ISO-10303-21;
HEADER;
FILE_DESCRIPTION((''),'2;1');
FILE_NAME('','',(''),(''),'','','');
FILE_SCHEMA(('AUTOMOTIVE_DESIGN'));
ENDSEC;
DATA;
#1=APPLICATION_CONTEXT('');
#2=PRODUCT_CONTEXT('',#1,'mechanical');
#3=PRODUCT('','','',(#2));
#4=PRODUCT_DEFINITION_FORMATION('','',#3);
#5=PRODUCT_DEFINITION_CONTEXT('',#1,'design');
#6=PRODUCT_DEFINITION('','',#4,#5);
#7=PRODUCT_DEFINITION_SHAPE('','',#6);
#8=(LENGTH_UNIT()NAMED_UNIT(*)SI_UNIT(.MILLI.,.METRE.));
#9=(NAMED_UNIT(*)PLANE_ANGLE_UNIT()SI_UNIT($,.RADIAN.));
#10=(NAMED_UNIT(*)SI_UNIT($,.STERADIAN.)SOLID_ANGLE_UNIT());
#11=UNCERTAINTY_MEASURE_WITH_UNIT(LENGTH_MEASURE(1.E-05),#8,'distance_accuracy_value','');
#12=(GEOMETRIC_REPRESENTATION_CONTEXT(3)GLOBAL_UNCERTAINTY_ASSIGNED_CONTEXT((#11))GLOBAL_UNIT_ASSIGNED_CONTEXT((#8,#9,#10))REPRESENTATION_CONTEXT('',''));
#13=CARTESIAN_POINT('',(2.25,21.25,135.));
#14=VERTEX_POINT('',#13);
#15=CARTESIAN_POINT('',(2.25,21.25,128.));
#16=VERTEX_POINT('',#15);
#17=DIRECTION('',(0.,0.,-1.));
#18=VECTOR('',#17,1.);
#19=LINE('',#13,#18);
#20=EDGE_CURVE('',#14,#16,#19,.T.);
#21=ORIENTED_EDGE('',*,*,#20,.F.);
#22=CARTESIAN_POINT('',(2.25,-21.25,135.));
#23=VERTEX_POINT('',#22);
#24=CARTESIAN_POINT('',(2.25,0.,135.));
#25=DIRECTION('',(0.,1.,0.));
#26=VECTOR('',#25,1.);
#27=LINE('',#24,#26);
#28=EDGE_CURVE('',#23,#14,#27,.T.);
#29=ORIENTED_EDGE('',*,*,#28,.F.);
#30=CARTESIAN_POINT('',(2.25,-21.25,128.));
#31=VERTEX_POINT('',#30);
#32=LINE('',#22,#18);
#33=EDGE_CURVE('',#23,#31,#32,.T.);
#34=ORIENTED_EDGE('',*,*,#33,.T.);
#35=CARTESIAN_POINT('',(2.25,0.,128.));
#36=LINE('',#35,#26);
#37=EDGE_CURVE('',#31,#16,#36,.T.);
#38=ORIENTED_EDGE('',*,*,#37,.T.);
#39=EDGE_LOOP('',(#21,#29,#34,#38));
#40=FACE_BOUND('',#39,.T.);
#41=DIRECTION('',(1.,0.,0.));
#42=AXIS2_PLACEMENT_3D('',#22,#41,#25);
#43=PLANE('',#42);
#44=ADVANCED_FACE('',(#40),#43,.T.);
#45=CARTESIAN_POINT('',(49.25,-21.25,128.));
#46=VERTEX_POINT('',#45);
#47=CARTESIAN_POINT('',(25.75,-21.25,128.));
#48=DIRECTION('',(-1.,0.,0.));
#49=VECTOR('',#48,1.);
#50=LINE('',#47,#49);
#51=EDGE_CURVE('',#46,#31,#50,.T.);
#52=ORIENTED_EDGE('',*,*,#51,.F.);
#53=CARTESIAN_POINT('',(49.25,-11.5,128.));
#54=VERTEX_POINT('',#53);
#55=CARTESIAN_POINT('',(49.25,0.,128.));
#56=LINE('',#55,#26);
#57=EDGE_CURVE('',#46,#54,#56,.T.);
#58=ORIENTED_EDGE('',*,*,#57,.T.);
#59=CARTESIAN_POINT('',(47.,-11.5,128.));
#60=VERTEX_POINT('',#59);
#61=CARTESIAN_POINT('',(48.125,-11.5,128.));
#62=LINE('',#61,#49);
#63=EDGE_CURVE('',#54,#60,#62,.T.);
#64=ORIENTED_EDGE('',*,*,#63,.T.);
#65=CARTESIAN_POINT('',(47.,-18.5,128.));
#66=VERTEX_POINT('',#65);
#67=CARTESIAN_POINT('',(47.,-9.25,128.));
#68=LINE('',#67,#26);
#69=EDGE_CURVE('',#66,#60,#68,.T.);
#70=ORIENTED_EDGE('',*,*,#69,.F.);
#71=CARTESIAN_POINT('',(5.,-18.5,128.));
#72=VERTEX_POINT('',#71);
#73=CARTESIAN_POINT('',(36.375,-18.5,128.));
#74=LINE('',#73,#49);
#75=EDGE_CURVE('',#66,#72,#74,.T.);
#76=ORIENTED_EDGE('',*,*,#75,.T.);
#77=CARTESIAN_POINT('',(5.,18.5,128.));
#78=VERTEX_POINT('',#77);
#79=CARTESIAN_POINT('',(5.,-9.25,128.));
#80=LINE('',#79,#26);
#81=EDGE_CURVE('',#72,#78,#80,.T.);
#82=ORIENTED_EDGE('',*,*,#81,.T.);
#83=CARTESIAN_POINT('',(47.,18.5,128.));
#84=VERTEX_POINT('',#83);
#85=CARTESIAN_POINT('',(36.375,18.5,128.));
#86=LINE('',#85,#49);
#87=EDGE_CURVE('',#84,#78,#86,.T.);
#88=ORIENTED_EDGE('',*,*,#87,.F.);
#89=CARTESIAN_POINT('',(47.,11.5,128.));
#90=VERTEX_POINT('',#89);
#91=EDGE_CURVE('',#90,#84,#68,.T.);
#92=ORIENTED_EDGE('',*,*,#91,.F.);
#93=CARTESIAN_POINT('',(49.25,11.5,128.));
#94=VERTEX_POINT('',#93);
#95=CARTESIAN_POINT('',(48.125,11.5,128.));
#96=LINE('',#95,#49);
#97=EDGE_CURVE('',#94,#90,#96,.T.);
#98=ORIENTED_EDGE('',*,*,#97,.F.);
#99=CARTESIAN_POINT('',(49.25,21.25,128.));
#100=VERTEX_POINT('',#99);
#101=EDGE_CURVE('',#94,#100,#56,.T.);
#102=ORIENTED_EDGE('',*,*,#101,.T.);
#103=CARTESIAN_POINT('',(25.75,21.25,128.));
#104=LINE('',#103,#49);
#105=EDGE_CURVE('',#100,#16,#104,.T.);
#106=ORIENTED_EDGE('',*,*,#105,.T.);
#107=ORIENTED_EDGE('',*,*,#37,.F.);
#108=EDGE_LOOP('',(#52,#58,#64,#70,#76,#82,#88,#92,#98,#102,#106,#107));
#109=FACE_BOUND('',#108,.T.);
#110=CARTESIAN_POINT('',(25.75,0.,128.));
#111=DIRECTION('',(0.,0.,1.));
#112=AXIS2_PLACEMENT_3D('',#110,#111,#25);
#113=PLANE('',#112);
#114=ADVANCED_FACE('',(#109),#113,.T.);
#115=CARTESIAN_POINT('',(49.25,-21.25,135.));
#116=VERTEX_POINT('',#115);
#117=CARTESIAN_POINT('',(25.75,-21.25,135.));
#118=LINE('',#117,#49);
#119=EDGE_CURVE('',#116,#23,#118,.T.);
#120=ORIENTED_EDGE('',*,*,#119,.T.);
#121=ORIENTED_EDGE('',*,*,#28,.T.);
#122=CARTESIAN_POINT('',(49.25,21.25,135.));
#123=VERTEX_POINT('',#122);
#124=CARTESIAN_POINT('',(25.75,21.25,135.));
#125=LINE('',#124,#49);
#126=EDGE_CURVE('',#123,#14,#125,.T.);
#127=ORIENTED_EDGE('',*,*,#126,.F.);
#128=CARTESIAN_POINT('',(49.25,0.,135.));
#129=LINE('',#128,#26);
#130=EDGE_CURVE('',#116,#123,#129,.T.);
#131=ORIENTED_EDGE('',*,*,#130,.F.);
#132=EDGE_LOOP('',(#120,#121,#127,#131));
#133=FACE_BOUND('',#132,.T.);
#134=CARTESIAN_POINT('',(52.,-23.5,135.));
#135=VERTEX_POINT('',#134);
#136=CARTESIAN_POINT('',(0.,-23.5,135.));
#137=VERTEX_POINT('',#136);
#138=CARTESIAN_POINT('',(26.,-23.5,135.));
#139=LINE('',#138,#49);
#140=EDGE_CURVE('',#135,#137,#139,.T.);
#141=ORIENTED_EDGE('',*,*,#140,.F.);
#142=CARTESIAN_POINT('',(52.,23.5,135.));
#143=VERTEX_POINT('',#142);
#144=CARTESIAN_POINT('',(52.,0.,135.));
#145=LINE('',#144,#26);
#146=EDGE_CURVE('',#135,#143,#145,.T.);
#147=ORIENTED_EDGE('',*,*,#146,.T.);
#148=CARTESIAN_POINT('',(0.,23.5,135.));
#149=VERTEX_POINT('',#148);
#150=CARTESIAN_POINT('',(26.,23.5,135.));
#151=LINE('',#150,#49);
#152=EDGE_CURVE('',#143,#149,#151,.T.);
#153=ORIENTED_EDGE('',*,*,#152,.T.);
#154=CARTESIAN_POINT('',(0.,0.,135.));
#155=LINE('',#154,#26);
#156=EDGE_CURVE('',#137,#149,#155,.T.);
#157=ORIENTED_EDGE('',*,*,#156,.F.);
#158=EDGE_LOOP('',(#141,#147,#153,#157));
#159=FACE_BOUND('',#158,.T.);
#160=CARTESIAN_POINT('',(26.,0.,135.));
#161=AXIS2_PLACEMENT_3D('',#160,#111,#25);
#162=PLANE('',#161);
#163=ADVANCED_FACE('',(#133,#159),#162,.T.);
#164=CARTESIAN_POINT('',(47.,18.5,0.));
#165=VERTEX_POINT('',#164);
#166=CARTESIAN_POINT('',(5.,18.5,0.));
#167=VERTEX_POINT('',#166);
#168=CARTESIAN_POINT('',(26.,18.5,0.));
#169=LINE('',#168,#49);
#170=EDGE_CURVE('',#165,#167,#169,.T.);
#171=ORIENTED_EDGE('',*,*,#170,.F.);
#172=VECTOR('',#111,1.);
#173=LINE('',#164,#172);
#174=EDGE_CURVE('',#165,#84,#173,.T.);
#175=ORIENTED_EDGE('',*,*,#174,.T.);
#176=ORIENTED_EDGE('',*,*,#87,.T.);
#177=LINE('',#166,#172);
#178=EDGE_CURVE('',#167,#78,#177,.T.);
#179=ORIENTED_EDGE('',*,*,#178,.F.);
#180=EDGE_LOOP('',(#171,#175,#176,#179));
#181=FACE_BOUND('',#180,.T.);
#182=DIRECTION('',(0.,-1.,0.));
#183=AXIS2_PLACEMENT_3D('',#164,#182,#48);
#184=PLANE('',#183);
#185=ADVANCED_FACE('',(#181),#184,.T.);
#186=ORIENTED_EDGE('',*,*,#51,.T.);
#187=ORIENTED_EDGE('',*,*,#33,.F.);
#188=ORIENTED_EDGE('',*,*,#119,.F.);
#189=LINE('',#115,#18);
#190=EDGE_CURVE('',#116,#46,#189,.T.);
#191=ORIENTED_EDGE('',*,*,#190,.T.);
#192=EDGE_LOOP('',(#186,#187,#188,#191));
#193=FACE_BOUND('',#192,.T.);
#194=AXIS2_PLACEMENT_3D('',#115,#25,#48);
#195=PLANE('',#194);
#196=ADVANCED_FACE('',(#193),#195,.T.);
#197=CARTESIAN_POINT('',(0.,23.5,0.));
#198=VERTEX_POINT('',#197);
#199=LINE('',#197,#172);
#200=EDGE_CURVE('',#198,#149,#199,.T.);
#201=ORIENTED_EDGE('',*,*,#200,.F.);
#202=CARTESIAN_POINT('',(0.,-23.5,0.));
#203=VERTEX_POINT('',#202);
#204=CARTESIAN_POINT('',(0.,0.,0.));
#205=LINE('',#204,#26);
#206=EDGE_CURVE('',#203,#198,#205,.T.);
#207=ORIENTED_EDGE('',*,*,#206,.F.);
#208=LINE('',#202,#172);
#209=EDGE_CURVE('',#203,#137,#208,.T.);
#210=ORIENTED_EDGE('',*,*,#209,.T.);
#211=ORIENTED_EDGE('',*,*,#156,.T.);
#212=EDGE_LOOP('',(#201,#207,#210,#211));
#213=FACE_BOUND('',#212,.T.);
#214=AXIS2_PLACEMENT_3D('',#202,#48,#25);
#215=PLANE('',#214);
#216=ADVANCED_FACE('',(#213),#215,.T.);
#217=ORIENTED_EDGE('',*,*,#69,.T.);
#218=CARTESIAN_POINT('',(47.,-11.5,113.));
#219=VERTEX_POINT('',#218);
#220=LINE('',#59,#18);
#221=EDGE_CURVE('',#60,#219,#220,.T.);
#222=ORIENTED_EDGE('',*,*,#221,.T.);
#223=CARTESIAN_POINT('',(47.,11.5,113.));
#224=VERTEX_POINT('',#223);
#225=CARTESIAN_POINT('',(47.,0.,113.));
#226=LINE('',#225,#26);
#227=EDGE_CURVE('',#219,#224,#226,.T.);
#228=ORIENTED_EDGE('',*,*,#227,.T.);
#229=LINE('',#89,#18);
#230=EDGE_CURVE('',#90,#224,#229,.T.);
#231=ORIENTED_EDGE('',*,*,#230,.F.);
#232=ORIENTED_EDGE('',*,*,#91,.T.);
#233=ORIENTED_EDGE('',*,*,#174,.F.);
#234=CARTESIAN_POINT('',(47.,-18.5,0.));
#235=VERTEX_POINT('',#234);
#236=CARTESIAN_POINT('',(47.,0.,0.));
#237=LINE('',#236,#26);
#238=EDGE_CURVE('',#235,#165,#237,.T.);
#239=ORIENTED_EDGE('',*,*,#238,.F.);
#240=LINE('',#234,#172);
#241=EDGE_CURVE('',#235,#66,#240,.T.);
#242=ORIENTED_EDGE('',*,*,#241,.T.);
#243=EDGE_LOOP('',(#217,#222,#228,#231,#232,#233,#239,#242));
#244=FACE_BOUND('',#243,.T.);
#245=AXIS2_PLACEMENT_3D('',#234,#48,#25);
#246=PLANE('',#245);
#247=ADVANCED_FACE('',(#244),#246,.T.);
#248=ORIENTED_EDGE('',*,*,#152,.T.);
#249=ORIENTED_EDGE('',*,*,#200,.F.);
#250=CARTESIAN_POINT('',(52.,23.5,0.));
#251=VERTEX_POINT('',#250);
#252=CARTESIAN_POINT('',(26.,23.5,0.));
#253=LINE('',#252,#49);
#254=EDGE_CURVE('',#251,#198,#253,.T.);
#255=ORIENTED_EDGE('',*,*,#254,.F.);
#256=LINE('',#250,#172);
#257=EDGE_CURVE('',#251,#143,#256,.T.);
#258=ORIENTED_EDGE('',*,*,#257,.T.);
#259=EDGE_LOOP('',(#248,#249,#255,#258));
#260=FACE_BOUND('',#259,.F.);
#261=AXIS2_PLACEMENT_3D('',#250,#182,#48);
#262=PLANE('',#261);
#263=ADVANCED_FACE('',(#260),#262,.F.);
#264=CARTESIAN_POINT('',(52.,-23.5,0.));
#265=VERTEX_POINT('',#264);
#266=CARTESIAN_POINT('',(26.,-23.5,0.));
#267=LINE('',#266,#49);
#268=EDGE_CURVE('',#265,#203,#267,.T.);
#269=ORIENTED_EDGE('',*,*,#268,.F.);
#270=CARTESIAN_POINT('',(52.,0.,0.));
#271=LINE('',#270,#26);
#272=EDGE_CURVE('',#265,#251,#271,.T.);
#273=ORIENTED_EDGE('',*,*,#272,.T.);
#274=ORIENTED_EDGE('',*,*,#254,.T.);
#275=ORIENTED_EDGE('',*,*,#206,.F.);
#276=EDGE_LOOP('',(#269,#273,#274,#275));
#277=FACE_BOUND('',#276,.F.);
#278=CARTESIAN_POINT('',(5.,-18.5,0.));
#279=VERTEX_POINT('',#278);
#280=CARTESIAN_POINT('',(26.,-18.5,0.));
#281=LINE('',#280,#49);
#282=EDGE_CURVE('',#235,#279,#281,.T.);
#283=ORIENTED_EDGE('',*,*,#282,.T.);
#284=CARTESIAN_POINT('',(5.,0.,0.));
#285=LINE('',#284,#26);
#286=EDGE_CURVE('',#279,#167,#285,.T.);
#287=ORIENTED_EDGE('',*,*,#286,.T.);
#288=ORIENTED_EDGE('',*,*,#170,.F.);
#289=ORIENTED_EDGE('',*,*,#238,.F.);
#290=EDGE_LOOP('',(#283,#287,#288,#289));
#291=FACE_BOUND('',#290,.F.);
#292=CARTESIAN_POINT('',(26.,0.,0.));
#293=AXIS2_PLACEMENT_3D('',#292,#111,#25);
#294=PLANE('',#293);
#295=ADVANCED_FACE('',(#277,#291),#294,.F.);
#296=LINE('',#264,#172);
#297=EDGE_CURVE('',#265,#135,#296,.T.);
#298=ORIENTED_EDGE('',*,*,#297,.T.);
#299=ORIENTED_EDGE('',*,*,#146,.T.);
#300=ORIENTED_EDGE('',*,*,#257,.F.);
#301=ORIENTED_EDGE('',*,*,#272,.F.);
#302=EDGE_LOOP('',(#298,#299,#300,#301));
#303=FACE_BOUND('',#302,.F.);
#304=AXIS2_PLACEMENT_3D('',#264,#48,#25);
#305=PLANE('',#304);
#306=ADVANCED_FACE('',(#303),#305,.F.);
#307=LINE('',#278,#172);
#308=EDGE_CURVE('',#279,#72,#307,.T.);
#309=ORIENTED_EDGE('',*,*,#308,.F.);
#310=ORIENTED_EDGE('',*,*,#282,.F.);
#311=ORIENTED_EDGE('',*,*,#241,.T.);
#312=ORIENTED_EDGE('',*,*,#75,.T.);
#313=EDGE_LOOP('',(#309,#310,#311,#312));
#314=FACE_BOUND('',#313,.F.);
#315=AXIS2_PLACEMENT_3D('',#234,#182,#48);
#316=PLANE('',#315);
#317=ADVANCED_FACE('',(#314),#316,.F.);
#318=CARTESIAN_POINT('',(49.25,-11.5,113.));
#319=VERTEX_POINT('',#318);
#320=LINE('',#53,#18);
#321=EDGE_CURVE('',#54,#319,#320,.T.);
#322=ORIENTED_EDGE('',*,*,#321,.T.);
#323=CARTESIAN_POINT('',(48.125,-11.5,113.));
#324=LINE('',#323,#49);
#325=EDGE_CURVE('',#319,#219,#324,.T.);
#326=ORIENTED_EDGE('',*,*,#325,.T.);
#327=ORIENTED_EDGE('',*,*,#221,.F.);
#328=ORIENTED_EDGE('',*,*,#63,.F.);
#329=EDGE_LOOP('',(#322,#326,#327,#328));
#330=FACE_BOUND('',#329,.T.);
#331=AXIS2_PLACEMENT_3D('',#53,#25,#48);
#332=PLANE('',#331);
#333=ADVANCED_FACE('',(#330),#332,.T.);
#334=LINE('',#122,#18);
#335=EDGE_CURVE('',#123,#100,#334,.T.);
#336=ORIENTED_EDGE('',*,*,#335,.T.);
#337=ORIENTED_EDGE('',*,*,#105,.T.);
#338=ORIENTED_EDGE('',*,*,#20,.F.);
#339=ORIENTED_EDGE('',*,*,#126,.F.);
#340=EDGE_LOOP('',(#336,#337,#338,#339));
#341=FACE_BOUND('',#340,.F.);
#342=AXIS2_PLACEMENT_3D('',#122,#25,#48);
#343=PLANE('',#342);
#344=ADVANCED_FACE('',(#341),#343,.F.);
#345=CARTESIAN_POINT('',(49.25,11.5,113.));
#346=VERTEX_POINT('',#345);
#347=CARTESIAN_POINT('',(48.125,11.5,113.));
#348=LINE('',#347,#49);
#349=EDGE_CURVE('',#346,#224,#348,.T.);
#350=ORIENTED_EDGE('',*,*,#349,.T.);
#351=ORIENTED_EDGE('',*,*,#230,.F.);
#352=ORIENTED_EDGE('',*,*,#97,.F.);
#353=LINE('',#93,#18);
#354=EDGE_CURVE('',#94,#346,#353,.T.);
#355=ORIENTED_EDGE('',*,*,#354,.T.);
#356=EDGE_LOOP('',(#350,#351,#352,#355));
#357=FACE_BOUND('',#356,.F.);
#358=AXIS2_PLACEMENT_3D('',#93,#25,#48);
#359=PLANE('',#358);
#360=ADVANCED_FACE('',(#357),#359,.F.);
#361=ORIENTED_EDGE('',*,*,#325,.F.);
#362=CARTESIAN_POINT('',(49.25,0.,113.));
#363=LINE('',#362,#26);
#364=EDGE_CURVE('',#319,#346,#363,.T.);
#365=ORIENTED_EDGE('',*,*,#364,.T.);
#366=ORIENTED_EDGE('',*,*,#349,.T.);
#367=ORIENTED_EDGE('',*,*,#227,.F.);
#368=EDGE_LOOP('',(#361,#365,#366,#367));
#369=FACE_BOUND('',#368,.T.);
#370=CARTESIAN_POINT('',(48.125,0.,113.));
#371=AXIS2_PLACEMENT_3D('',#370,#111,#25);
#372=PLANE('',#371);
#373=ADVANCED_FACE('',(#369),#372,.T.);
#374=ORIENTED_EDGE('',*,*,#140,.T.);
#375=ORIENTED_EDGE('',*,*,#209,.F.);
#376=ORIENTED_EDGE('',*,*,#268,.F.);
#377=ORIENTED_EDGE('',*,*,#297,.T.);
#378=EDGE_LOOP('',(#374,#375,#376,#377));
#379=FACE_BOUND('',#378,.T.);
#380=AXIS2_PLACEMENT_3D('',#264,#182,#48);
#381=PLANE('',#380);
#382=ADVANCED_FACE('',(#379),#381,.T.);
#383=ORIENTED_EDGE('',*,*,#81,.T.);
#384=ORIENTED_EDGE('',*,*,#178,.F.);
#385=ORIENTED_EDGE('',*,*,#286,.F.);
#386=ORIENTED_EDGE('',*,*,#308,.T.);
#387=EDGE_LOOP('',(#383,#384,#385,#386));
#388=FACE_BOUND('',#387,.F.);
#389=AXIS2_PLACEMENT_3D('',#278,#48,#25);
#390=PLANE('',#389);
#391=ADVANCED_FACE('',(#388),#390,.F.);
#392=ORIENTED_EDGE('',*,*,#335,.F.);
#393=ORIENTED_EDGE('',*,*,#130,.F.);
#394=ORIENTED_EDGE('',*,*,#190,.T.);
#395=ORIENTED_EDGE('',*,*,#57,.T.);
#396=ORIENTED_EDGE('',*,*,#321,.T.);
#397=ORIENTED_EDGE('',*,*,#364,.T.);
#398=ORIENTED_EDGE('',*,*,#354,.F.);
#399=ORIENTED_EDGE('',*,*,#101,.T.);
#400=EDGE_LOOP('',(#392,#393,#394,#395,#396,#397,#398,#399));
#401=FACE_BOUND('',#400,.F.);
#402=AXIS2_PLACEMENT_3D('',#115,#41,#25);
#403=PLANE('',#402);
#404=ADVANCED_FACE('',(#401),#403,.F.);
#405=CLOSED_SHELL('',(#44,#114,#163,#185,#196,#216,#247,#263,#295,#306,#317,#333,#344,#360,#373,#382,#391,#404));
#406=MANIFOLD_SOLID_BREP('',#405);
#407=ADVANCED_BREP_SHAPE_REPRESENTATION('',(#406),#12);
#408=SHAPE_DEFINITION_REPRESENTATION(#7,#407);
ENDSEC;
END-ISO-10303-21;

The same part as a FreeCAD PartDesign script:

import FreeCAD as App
import Part
import Sketcher
from FreeCAD import Vector
Q = App.Units.Quantity


def add_polygon(sketch, points):
    """Adds a closed chain of lines whose ends are joined by coincident constraints."""
    first, n = sketch.GeometryCount, len(points)
    for a, b in zip(points, points[1:] + points[:1]):
        sketch.addGeometry(Part.LineSegment(App.Vector(*a, 0), App.Vector(*b, 0)), False)
    for i in range(n):
        sketch.addConstraint(Sketcher.Constraint("Coincident", first + i, 2, first + (i + 1) % n, 1))

doc = App.newDocument("Part")
params = doc.addObject("Spreadsheet::Sheet", "Params")
for row, (alias, value) in enumerate([
    ("sketch1_width", "47 mm"),
    ("sketch1_width2", "37 mm"),
    ("sketch1_height", "52 mm"),
    ("sketch1_height2", "42 mm"),
    ("pad1_length", "135 mm"),
    ("sketch2_height", "47 mm"),
    ("sketch2_width", "42.5 mm"),
    ("pocket1_length", "7 mm"),
    ("sketch3_width", "23 mm"),
    ("sketch3_height", "2.25 mm"),
    ("pocket2_length", "15 mm"),
], start=1):
    params.set(f"A{row}", alias)
    params.set(f"B{row}", "=" + value)
    params.setAlias(f"B{row}", alias)

body = doc.addObject("PartDesign::Body", "Body")

# Sketch on XY plane
sketch1 = body.newObject("Sketcher::SketchObject", "Sketch")
sketch1.AttachmentSupport = (doc.getObject("XY_Plane"), [""])
sketch1.MapMode = "FlatFace"
add_polygon(sketch1, [(-24, 0), (-24, -52), (24, -52), (24, 0)])  # lines 0-3
add_polygon(sketch1, [(18, -47), (-18, -47), (-18, -5), (18, -5)])  # lines 4-7
sketch1.addConstraint([
    Sketcher.Constraint("Vertical", 0),
    Sketcher.Constraint("Horizontal", 1),
    Sketcher.Constraint("Vertical", 2),
    Sketcher.Constraint("Horizontal", 3),
    Sketcher.Constraint("Horizontal", 4),
    Sketcher.Constraint("Vertical", 5),
    Sketcher.Constraint("Horizontal", 6),
    Sketcher.Constraint("Vertical", 7),
    Sketcher.Constraint("Symmetric", 2, 2, 3, 2, -1, 1),
    Sketcher.Constraint("DistanceX", 1, 1, 1, 2, Q("47 mm")),
    Sketcher.Constraint("DistanceX", 4, 2, 4, 1, Q("37 mm")),
    Sketcher.Constraint("DistanceY", 0, 2, 0, 1, Q("52 mm")),
    Sketcher.Constraint("DistanceY", 5, 1, 5, 2, Q("42 mm")),
    Sketcher.Constraint("DistanceY", 4, 2, -1, 1, Q("47 mm")),
    Sketcher.Constraint("DistanceX", 0, 2, 4, 2, Q("5 mm")),
])
sketch1.setExpression("Constraints[17]", "Params.sketch1_width")
sketch1.setExpression("Constraints[18]", "Params.sketch1_width2")
sketch1.setExpression("Constraints[19]", "Params.sketch1_height")
sketch1.setExpression("Constraints[20]", "Params.sketch1_height2")
pad1 = body.newObject("PartDesign::Pad", "Pad")
pad1.Profile = sketch1
pad1.setExpression("Length", "Params.pad1_length")

# Sketch on XY plane
sketch2 = body.newObject("Sketcher::SketchObject", "Sketch001")
sketch2.AttachmentSupport = (doc.getObject("XY_Plane"), [""])
sketch2.MapMode = "FlatFace"
sketch2.AttachmentOffset = App.Placement(Vector(0, 0, 135), App.Rotation())
add_polygon(sketch2, [(-21, -2), (-21, -49), (21, -49), (21, -2)])  # lines 0-3
sketch2.addConstraint([
    Sketcher.Constraint("Vertical", 0),
    Sketcher.Constraint("Horizontal", 1),
    Sketcher.Constraint("Vertical", 2),
    Sketcher.Constraint("Horizontal", 3),
    Sketcher.Constraint("DistanceY", 0, 2, 0, 1, Q("47 mm")),
    Sketcher.Constraint("DistanceX", 1, 1, 1, 2, Q("42.5 mm")),
    Sketcher.Constraint("DistanceX", 0, 2, -1, 1, Q("21.25 mm")),
    Sketcher.Constraint("DistanceY", 0, 2, -1, 1, Q("49.25 mm")),
])
sketch2.setExpression("Constraints[8]", "Params.sketch2_height")
sketch2.setExpression("Constraints[9]", "Params.sketch2_width")
pocket1 = body.newObject("PartDesign::Pocket", "Pocket")
pocket1.Profile = sketch2
pocket1.setExpression("Length", "Params.pocket1_length")

# Sketch on XY plane
sketch3 = body.newObject("Sketcher::SketchObject", "Sketch002")
sketch3.AttachmentSupport = (doc.getObject("XY_Plane"), [""])
sketch3.MapMode = "FlatFace"
sketch3.AttachmentOffset = App.Placement(Vector(0, 0, 128), App.Rotation())
add_polygon(sketch3, [(-11.5, -47), (-11.5, -49.2), (11.5, -49.2), (11.5, -47)])  # lines 0-3
sketch3.addConstraint([
    Sketcher.Constraint("Vertical", 0),
    Sketcher.Constraint("Horizontal", 1),
    Sketcher.Constraint("Vertical", 2),
    Sketcher.Constraint("Horizontal", 3),
    Sketcher.Constraint("DistanceX", 1, 1, 1, 2, Q("23 mm")),
    Sketcher.Constraint("DistanceY", 2, 2, -1, 1, Q("47 mm")),
    Sketcher.Constraint("DistanceY", 0, 2, 0, 1, Q("2.25 mm")),
    Sketcher.Constraint("DistanceX", 0, 2, -1, 1, Q("11.5 mm")),
])
sketch3.setExpression("Constraints[8]", "Params.sketch3_width")
sketch3.setExpression("Constraints[10]", "Params.sketch3_height")
pocket2 = body.newObject("PartDesign::Pocket", "Pocket001")
pocket2.Profile = sketch3
pocket2.setExpression("Length", "Params.pocket2_length")
body2 = doc.addObject("PartDesign::Body", "Body001")
doc.recompute()

body.Placement = App.Placement(Vector(0, 0, 0), App.Rotation(Vector(0, 0, 1), 90))
boolean = body2.newObject("PartDesign::Boolean", "Boolean")
boolean.Type = "Fuse"
boolean.addObjects([body])

doc.recompute()
